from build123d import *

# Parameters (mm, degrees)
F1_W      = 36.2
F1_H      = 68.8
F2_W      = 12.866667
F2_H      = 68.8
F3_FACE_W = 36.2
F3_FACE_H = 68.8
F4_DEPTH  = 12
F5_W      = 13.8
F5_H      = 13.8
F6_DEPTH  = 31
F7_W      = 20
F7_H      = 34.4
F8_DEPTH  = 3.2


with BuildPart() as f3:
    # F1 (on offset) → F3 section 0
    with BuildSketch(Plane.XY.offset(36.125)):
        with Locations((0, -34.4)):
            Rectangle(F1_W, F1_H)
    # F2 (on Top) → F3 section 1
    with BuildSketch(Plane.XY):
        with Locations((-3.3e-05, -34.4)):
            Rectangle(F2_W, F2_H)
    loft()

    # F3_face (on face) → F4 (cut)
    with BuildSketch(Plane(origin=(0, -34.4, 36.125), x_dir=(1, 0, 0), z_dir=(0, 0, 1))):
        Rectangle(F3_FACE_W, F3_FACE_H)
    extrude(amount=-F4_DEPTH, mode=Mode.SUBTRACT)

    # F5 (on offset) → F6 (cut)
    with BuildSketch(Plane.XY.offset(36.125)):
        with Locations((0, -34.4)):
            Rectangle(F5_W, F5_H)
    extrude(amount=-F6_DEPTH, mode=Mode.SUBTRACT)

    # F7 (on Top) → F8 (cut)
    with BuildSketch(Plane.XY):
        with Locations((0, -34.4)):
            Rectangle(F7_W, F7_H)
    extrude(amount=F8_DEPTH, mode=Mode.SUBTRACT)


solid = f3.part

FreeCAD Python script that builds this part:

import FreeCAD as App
import Part
import Sketcher


def add_polygon(sketch, points):
    """Adds a closed chain of lines whose ends are joined by coincident constraints."""
    first, n = sketch.GeometryCount, len(points)
    for a, b in zip(points, points[1:] + points[:1]):
        sketch.addGeometry(Part.LineSegment(App.Vector(*a, 0), App.Vector(*b, 0)), False)
    for i in range(n):
        sketch.addConstraint(Sketcher.Constraint("Coincident", first + i, 2, first + (i + 1) % n, 1))

doc = App.newDocument("Part")
params = doc.addObject("Spreadsheet::Sheet", "Params")
for row, (alias, value) in enumerate([
    ("sketch1_width", "36.2 mm"),
    ("sketch1_height", "68.8 mm"),
    ("sketch2_height", "68.8 mm"),
    ("sketch3_width", "36.2 mm"),
    ("sketch3_height", "68.8 mm"),
    ("pocket1_length", "12 mm"),
    ("sketch4_width", "13.8 mm"),
    ("pocket2_length", "31 mm"),
    ("sketch5_width", "20 mm"),
    ("sketch5_height", "34.4 mm"),
    ("pocket3_length", "3.2 mm"),
], start=1):
    params.set(f"A{row}", alias)
    params.set(f"B{row}", "=" + value)
    params.setAlias(f"B{row}", alias)

body = doc.addObject("PartDesign::Body", "Body")

sketch1 = body.newObject("Sketcher::SketchObject", "Sketch")
sketch1.AttachmentSupport = (doc.getObject("XY_Plane"), [""])
sketch1.MapMode = "FlatFace"
sketch1.AttachmentOffset = App.Placement(App.Vector(0, 0, 36.125), App.Rotation())
add_polygon(sketch1, [(-18, 0), (-18, -69), (18, -69), (18, 0)])
sketch1.addConstraint([
    Sketcher.Constraint("Vertical", 0),
    Sketcher.Constraint("Horizontal", 1),
    Sketcher.Constraint("Vertical", 2),
    Sketcher.Constraint("Horizontal", 3),
    Sketcher.Constraint("Symmetric", 2, 2, 3, 2, -1, 1),
    Sketcher.Constraint("DistanceX", 1, 1, 1, 2, 36.2),
    Sketcher.Constraint("DistanceY", 0, 2, 0, 1, 68.8),
])
sketch1.setExpression("Constraints[9]", "Params.sketch1_width")
sketch1.setExpression("Constraints[10]", "Params.sketch1_height")

sketch2 = body.newObject("Sketcher::SketchObject", "Sketch001")
sketch2.AttachmentSupport = (doc.getObject("XY_Plane"), [""])
sketch2.MapMode = "FlatFace"
add_polygon(sketch2, [(-6, 0), (-6, -69), (6, -69), (6, 0)])
sketch2.addConstraint([
    Sketcher.Constraint("Vertical", 0),
    Sketcher.Constraint("Horizontal", 1),
    Sketcher.Constraint("Vertical", 2),
    Sketcher.Constraint("Horizontal", 3),
    Sketcher.Constraint("PointOnObject", 2, 2, -1),
    Sketcher.Constraint("DistanceY", 0, 2, 0, 1, 68.8),
    Sketcher.Constraint("DistanceX", -1, 1, 1, 2, 6.4333),
    Sketcher.Constraint("DistanceX", 1, 1, 1, 2, 12.866667),
])
sketch2.setExpression("Constraints[9]", "Params.sketch2_height")

additiveloft = body.newObject("PartDesign::AdditiveLoft", "AdditiveLoft")
additiveloft.Profile = sketch1
additiveloft.Sections = [sketch2]

sketch3 = body.newObject("Sketcher::SketchObject", "Sketch002")
sketch3.AttachmentSupport = (doc.getObject("XY_Plane"), [""])
sketch3.MapMode = "FlatFace"
sketch3.AttachmentOffset = App.Placement(App.Vector(0, 0, 36.125), App.Rotation())
add_polygon(sketch3, [(-18, 0), (-18, -69), (18, -69), (18, 0)])
sketch3.addConstraint([
    Sketcher.Constraint("Vertical", 0),
    Sketcher.Constraint("Horizontal", 1),
    Sketcher.Constraint("Vertical", 2),
    Sketcher.Constraint("Horizontal", 3),
    Sketcher.Constraint("Symmetric", 2, 2, 3, 2, -1, 1),
    Sketcher.Constraint("DistanceX", 1, 1, 1, 2, 36.2),
    Sketcher.Constraint("DistanceY", 0, 2, 0, 1, 68.8),
])
sketch3.setExpression("Constraints[9]", "Params.sketch3_width")
sketch3.setExpression("Constraints[10]", "Params.sketch3_height")
pocket1 = body.newObject("PartDesign::Pocket", "Pocket")
pocket1.Profile = sketch3
pocket1.setExpression("Length", "Params.pocket1_length")

sketch4 = body.newObject("Sketcher::SketchObject", "Sketch003")
sketch4.AttachmentSupport = (doc.getObject("XY_Plane"), [""])
sketch4.MapMode = "FlatFace"
sketch4.AttachmentOffset = App.Placement(App.Vector(0, 0, 36.125), App.Rotation())
add_polygon(sketch4, [(-7, -28), (-7, -41), (7, -41), (7, -28)])
sketch4.addConstraint([
    Sketcher.Constraint("Vertical", 0),
    Sketcher.Constraint("Horizontal", 1),
    Sketcher.Constraint("Vertical", 2),
    Sketcher.Constraint("Horizontal", 3),
    Sketcher.Constraint("Equal", 3, 0),
    Sketcher.Constraint("DistanceX", 1, 1, 1, 2, 13.8),
    Sketcher.Constraint("DistanceX", 0, 2, -1, 1, 6.9),
    Sketcher.Constraint("DistanceY", 0, 2, -1, 1, 41.3),
])
sketch4.setExpression("Constraints[9]", "Params.sketch4_width")
pocket2 = body.newObject("PartDesign::Pocket", "Pocket001")
pocket2.Profile = sketch4
pocket2.setExpression("Length", "Params.pocket2_length")

sketch5 = body.newObject("Sketcher::SketchObject", "Sketch004")
sketch5.AttachmentSupport = (doc.getObject("XY_Plane"), [""])
sketch5.MapMode = "FlatFace"
add_polygon(sketch5, [(-10, -17), (-10, -52), (10, -52), (10, -17)])
sketch5.addConstraint([
    Sketcher.Constraint("Vertical", 0),
    Sketcher.Constraint("Horizontal", 1),
    Sketcher.Constraint("Vertical", 2),
    Sketcher.Constraint("Horizontal", 3),
    Sketcher.Constraint("DistanceX", 1, 1, 1, 2, 20.0),
    Sketcher.Constraint("DistanceY", 0, 2, 0, 1, 34.4),
    Sketcher.Constraint("DistanceX", 0, 2, -1, 1, 10.0),
    Sketcher.Constraint("DistanceY", 0, 2, -1, 1, 51.6),
])
sketch5.setExpression("Constraints[8]", "Params.sketch5_width")
sketch5.setExpression("Constraints[9]", "Params.sketch5_height")
pocket3 = body.newObject("PartDesign::Pocket", "Pocket002")
pocket3.Profile = sketch5
pocket3.setExpression("Length", "Params.pocket3_length")
pocket3.Reversed = True

doc.recompute()
